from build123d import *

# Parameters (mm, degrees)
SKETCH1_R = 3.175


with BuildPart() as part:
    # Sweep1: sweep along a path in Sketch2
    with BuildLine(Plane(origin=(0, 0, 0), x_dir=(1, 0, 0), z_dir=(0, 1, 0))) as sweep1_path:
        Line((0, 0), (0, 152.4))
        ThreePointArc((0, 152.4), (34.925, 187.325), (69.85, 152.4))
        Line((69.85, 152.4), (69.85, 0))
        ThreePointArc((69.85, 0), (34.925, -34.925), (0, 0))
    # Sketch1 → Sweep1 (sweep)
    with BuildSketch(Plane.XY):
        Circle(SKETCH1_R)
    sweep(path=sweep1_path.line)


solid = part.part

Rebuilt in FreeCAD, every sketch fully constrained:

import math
import FreeCAD as App
import Part
import Sketcher

V = App.Vector
Q = App.Units.Quantity

doc = App.newDocument("Part")
params = doc.addObject("Spreadsheet::Sheet", "Params")
for row, (alias, value) in enumerate([
    ("sketch1_diameter", "0.25 in"),
    ("sketch2_height", "6 in"),
    ("sketch2_radius", "1.375 in"),
], start=1):
    params.set(f"A{row}", alias)
    params.set(f"B{row}", "=" + value)
    params.setAlias(f"B{row}", alias)

body = doc.addObject("PartDesign::Body", "Body")

sketch1 = body.newObject("Sketcher::SketchObject", "Sketch")
sketch1.AttachmentSupport = (doc.getObject("XY_Plane"), [""])
sketch1.MapMode = "FlatFace"
sketch1.addGeometry(Part.Circle(V(0, 0, 0), V(0, 0, 1), 3.175), False)
sketch1.addConstraint([
    Sketcher.Constraint("Coincident", 0, 3, -1, 1),
    Sketcher.Constraint("Diameter", 0, Q("0.25 in")),
])
sketch1.setExpression("Constraints[1]", "Params.sketch1_diameter")

sketch2 = body.newObject("Sketcher::SketchObject", "Sketch001")
sketch2.AttachmentSupport = (doc.getObject("XZ_Plane"), [""])
sketch2.MapMode = "FlatFace"
sketch2.addGeometry([
    Part.LineSegment(V(0, 0, 0), V(0, -152.4, 0)),
    Part.ArcOfCircle(Part.Circle(V(34.925, -152.4, 0), V(0, 0, 1), 34.925), math.radians(180), math.radians(360)),
    Part.LineSegment(V(69.85, -152.4, 0), V(69.85, 0, 0)),
    Part.ArcOfCircle(Part.Circle(V(34.925, 0, 0), V(0, 0, 1), 34.925), math.radians(0), math.radians(180)),
], False)
sketch2.addConstraint([
    Sketcher.Constraint("Tangent", 0, 2, 1, 1),
    Sketcher.Constraint("Tangent", 1, 2, 2, 1),
    Sketcher.Constraint("Tangent", 2, 2, 3, 1),
    Sketcher.Constraint("Tangent", 3, 2, 0, 1),
    Sketcher.Constraint("Vertical", 0),
    Sketcher.Constraint("Vertical", 2),
    Sketcher.Constraint("Coincident", 3, 2, -1, 1),
    Sketcher.Constraint("DistanceY", 0, 2, 0, 1, Q("6 in")),
    Sketcher.Constraint("Radius", 1, Q("1.375 in")),
])
sketch2.setExpression("Constraints[7]", "Params.sketch2_height")
sketch2.setExpression("Constraints[8]", "Params.sketch2_radius")
doc.recompute()

additivepipe = body.newObject("PartDesign::AdditivePipe", "AdditivePipe")
additivepipe.Profile = sketch1
additivepipe.Spine = (sketch2, ["Edge1", "Edge2", "Edge3", "Edge4"])

doc.recompute()
